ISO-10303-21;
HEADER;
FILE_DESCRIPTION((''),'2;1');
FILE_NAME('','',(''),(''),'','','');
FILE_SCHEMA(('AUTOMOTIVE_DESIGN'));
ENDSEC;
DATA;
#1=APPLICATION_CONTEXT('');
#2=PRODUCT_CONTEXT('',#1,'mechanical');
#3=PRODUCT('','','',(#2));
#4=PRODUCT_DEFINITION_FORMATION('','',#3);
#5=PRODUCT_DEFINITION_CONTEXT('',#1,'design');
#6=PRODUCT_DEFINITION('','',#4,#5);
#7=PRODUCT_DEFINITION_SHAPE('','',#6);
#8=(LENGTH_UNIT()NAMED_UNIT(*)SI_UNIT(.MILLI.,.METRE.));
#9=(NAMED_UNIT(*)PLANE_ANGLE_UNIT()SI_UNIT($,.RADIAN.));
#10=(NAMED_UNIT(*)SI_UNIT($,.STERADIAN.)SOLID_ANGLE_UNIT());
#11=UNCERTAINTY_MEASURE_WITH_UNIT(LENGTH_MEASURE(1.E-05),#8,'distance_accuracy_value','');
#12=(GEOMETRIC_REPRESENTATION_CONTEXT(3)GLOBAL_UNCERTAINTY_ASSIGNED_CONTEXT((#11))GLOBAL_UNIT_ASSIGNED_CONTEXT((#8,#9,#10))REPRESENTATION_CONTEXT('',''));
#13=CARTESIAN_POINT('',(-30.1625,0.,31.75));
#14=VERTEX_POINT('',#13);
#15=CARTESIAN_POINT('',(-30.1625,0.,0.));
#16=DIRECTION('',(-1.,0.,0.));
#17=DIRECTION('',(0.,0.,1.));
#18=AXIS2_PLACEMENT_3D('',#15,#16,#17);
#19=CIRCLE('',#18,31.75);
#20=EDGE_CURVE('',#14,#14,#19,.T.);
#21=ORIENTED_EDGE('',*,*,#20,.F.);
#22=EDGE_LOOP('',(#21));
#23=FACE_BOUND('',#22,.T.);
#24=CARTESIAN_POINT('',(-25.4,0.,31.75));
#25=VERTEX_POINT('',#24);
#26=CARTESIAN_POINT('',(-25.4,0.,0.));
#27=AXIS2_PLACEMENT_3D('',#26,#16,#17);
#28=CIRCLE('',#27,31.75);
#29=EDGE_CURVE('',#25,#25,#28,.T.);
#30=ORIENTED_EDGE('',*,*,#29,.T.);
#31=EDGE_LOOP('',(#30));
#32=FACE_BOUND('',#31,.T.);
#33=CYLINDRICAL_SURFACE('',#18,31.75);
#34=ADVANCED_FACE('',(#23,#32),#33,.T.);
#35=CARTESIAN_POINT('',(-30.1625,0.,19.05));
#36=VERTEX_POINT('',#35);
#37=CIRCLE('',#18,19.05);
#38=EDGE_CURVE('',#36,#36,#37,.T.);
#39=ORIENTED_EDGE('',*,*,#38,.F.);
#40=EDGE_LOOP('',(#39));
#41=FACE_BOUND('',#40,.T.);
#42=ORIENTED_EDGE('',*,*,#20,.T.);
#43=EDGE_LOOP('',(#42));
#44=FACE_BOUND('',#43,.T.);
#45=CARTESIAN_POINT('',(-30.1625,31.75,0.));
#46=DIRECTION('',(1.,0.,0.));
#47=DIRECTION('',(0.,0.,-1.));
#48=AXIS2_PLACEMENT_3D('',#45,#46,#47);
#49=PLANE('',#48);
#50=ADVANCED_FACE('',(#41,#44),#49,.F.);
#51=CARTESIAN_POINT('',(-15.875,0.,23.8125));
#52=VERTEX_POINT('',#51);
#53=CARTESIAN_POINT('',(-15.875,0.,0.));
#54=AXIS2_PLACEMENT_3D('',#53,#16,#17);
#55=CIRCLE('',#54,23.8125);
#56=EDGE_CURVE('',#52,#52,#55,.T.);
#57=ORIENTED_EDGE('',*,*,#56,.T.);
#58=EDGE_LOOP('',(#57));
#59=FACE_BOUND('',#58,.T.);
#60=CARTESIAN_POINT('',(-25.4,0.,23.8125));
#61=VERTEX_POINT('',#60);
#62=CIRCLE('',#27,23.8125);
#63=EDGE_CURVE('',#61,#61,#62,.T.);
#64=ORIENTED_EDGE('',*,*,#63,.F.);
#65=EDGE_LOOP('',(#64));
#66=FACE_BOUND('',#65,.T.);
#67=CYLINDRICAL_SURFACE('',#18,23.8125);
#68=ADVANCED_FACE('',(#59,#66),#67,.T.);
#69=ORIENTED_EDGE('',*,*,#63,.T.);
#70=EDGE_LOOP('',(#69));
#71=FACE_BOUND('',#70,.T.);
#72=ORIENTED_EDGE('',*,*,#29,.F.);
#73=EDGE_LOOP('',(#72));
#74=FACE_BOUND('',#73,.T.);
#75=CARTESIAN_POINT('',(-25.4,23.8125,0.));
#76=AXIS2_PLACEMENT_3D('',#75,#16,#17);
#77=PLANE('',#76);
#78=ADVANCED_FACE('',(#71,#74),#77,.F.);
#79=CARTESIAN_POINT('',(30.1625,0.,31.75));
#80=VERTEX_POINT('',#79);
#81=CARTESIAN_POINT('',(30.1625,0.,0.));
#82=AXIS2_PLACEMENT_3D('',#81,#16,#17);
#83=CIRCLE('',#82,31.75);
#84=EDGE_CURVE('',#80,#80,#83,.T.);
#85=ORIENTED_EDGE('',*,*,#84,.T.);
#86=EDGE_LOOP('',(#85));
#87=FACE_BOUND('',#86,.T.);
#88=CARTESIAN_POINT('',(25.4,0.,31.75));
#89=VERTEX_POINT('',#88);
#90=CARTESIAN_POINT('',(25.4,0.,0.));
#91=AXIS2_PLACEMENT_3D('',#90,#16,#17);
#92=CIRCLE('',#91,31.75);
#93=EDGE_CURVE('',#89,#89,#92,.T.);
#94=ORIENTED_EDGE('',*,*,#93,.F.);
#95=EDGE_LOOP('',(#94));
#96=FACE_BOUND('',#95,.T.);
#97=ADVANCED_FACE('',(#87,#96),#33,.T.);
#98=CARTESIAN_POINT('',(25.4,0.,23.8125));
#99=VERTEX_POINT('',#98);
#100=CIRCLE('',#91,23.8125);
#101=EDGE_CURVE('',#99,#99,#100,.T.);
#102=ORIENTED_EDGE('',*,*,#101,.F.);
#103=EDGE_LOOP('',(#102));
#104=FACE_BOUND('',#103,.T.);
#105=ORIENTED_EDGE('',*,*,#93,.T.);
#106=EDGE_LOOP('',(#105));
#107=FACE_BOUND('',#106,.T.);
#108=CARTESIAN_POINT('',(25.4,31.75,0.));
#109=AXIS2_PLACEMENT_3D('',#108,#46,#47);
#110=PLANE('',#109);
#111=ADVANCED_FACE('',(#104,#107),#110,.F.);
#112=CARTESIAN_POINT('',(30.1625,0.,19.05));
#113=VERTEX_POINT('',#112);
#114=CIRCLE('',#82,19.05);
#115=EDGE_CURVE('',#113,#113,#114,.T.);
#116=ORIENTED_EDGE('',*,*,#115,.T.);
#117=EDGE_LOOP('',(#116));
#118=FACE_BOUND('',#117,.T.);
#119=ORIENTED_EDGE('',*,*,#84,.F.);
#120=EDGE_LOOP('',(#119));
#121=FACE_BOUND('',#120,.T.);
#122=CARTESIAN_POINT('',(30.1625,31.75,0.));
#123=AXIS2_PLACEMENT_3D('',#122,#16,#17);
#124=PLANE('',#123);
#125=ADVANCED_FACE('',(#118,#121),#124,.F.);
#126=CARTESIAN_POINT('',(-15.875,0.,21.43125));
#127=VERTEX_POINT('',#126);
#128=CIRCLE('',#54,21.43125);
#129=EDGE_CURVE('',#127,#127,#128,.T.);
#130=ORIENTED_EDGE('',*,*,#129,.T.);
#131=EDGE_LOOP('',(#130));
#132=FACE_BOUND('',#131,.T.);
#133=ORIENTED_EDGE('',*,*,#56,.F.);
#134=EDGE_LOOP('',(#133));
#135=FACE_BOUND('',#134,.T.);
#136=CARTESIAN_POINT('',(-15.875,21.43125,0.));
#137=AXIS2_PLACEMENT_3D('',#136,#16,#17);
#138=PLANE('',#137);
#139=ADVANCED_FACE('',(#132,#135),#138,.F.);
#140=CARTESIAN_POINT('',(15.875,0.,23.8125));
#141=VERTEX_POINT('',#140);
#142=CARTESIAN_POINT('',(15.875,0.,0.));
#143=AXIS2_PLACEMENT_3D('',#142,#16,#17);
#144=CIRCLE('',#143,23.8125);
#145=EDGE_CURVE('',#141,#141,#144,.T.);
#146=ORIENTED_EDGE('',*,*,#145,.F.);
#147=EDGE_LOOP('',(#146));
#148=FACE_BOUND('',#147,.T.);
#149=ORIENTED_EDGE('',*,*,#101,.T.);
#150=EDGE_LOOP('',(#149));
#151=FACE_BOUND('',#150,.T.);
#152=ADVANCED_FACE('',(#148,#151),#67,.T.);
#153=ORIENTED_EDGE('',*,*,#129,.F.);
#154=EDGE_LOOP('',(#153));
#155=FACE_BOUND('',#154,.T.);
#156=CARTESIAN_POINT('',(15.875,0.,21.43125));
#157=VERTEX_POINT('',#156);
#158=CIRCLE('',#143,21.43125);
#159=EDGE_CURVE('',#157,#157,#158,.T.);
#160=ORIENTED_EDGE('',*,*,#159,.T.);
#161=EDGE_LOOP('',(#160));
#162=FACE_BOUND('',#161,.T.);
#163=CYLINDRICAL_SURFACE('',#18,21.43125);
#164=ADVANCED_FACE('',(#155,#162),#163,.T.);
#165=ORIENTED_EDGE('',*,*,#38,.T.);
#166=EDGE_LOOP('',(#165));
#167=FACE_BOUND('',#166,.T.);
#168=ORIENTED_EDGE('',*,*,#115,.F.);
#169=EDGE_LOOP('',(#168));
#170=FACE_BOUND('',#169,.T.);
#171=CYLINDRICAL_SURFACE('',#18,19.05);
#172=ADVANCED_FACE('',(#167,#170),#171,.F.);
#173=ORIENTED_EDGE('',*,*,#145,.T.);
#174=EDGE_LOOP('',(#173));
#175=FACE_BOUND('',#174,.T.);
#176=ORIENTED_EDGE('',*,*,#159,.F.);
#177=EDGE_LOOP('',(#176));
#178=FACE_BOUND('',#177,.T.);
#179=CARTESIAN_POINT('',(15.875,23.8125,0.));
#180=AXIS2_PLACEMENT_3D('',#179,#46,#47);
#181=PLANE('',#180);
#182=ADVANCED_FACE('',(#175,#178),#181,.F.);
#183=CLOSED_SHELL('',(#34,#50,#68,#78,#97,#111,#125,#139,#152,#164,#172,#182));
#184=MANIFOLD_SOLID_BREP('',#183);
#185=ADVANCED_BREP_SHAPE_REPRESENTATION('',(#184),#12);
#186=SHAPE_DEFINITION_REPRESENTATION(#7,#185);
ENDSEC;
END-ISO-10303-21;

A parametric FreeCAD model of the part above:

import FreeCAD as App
import Part
import Sketcher

V = App.Vector
Q = App.Units.Quantity

doc = App.newDocument("Part")
body = doc.addObject("PartDesign::Body", "Body")

# Sketch on XY plane
sketch1 = body.newObject("Sketcher::SketchObject", "Sketch")
sketch1.AttachmentSupport = (doc.getObject("XY_Plane"), [""])
sketch1.MapMode = "FlatFace"
sketch1.addGeometry([
    Part.LineSegment(V(30.2, 19.1, 0), V(30.2, 31.8, 0)),  # 0
    Part.LineSegment(V(30.2, 31.8, 0), V(25.4, 31.8, 0)),  # 1
    Part.LineSegment(V(25.4, 31.8, 0), V(25.4, 23.8, 0)),  # 2
    Part.LineSegment(V(25.4, 23.8, 0), V(15.9, 23.8, 0)),  # 3
    Part.LineSegment(V(15.9, 23.8, 0), V(15.9, 21.4, 0)),  # 4
    Part.LineSegment(V(15.9, 21.4, 0), V(-15.9, 21.4, 0)),  # 5
    Part.LineSegment(V(-15.9, 21.4, 0), V(-15.9, 23.8, 0)),  # 6
    Part.LineSegment(V(-15.9, 23.8, 0), V(-25.4, 23.8, 0)),  # 7
    Part.LineSegment(V(-25.4, 23.8, 0), V(-25.4, 31.8, 0)),  # 8
    Part.LineSegment(V(-25.4, 31.8, 0), V(-30.2, 31.8, 0)),  # 9
    Part.LineSegment(V(-30.2, 31.8, 0), V(-30.2, 19.1, 0)),  # 10
    Part.LineSegment(V(-30.2, 19.1, 0), V(30.2, 19.1, 0)),  # 11
], False)
sketch1.addConstraint([
    Sketcher.Constraint("Coincident", 0, 2, 1, 1),
    Sketcher.Constraint("Coincident", 1, 2, 2, 1),
    Sketcher.Constraint("Coincident", 2, 2, 3, 1),
    Sketcher.Constraint("Coincident", 3, 2, 4, 1),
    Sketcher.Constraint("Coincident", 4, 2, 5, 1),
    Sketcher.Constraint("Coincident", 5, 2, 6, 1),
    Sketcher.Constraint("Coincident", 6, 2, 7, 1),
    Sketcher.Constraint("Coincident", 7, 2, 8, 1),
    Sketcher.Constraint("Coincident", 8, 2, 9, 1),
    Sketcher.Constraint("Coincident", 9, 2, 10, 1),
    Sketcher.Constraint("Coincident", 10, 2, 11, 1),
    Sketcher.Constraint("Coincident", 11, 2, 0, 1),
    Sketcher.Constraint("Vertical", 0),
    Sketcher.Constraint("Horizontal", 1),
    Sketcher.Constraint("Vertical", 2),
    Sketcher.Constraint("Horizontal", 3),
    Sketcher.Constraint("Vertical", 4),
    Sketcher.Constraint("Horizontal", 5),
    Sketcher.Constraint("Vertical", 6),
    Sketcher.Constraint("Horizontal", 7),
    Sketcher.Constraint("Vertical", 8),
    Sketcher.Constraint("Horizontal", 9),
    Sketcher.Constraint("Vertical", 10),
    Sketcher.Constraint("Horizontal", 11),
    Sketcher.Constraint("Symmetric", 3, 2, 6, 2, -2),
    Sketcher.Constraint("Symmetric", 1, 2, 8, 2, -2),
    Sketcher.Constraint("Equal", 1, 9),
    Sketcher.Constraint("DistanceY", 0, 1, 0, 2, Q("0.5 in")),
    Sketcher.Constraint("DistanceX", -1, 1, 1, 2, Q("1 in")),
    Sketcher.Constraint("DistanceX", 5, 2, 5, 1, Q("1.25 in")),
    Sketcher.Constraint("DistanceX", 1, 2, 1, 1, Q("0.1875 in")),
    Sketcher.Constraint("DistanceY", 2, 2, 2, 1, Q("0.3125 in")),
    Sketcher.Constraint("DistanceY", 4, 2, 4, 1, Q("0.09375 in")),
    Sketcher.Constraint("DistanceY", -1, 1, 0, 2, Q("1.25 in")),
])
revolution = body.newObject("PartDesign::Revolution", "Revolution")
revolution.Profile = sketch1
revolution.ReferenceAxis = (sketch1, ["H_Axis"])
revolution.Angle = 360

doc.recompute()
